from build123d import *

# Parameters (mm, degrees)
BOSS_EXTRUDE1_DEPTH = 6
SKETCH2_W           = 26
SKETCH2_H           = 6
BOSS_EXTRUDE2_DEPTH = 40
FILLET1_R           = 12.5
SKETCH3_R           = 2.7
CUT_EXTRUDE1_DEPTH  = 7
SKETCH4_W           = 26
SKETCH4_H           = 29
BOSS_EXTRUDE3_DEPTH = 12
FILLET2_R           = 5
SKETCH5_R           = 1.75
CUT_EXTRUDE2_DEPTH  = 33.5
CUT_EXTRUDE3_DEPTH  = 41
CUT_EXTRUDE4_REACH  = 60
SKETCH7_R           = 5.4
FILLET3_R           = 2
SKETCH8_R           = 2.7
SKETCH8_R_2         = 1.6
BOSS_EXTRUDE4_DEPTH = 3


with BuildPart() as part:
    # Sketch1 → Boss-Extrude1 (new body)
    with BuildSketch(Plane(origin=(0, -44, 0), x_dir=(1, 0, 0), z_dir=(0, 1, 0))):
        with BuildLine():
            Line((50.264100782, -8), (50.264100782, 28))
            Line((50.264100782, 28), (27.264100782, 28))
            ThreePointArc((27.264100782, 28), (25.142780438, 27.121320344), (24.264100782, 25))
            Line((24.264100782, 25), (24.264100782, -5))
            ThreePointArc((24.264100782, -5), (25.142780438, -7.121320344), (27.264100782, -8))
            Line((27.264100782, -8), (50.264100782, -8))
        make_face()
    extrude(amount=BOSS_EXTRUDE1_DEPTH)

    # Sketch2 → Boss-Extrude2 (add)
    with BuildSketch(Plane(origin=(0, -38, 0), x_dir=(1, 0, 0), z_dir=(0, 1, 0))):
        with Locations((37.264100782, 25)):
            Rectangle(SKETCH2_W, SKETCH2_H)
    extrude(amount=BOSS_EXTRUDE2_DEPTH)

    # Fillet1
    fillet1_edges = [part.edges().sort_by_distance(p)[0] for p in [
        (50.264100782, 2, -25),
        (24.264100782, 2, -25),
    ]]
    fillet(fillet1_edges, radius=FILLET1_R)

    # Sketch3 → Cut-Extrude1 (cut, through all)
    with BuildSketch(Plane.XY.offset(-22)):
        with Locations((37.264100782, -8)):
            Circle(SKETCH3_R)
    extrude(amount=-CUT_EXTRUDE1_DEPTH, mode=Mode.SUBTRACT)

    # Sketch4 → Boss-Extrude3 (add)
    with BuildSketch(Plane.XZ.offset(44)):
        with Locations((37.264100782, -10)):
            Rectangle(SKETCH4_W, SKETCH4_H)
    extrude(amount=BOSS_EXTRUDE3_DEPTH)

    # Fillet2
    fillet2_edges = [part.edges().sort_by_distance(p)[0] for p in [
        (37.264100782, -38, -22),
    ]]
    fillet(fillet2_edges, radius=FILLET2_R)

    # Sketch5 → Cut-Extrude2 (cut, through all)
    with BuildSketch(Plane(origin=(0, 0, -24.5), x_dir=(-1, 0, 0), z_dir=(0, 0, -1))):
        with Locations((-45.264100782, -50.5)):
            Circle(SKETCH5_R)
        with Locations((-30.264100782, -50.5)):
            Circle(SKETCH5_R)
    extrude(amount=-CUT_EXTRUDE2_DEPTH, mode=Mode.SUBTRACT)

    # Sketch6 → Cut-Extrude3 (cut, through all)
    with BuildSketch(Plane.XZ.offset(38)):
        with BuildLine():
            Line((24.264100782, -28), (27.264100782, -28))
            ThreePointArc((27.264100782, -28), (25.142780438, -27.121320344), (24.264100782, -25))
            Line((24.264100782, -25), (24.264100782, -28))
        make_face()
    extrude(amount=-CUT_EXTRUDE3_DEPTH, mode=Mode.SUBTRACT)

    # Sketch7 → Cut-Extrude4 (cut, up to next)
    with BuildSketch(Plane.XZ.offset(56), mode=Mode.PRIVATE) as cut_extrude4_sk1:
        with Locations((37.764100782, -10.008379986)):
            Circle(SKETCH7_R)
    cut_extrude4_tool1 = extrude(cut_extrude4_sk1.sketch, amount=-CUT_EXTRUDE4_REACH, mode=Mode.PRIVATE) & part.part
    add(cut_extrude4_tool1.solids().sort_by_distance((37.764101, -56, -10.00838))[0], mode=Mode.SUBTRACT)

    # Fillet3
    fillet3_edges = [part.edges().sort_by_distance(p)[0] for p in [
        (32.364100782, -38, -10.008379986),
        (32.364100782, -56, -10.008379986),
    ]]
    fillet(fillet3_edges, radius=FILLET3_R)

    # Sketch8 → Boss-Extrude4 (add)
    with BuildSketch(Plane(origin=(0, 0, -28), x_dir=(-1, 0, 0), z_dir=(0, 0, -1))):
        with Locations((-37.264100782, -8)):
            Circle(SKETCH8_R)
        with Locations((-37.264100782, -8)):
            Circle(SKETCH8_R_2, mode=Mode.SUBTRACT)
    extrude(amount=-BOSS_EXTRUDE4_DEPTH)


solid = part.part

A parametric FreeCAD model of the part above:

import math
import FreeCAD as App
import Part
import Sketcher

V = App.Vector
Q = App.Units.Quantity


def edges_at(feature, points):
    """Names of the edges that pass closest to the given points."""
    edges = feature.Shape.Edges
    near = lambda p: min(range(len(edges)), key=lambda i: edges[i].distToShape(Part.Vertex(*p))[0])
    return sorted({f"Edge{near(p) + 1}" for p in points})


def add_polygon(sketch, points):
    """Adds a closed chain of lines whose ends are joined by coincident constraints."""
    first, n = sketch.GeometryCount, len(points)
    for a, b in zip(points, points[1:] + points[:1]):
        sketch.addGeometry(Part.LineSegment(App.Vector(*a, 0), App.Vector(*b, 0)), False)
    for i in range(n):
        sketch.addConstraint(Sketcher.Constraint("Coincident", first + i, 2, first + (i + 1) % n, 1))

doc = App.newDocument("Part")
body = doc.addObject("PartDesign::Body", "Body")

# Sketch on XZ plane
sketch1 = body.newObject("Sketcher::SketchObject", "Sketch")
sketch1.AttachmentSupport = (doc.getObject("XZ_Plane"), [""])
sketch1.MapMode = "FlatFace"
sketch1.AttachmentOffset = App.Placement(V(0, 0, 44), App.Rotation())
sketch1.addGeometry(Part.LineSegment(V(50.264101, 8, 0), V(50.264101, -28, 0)), False)
sketch1.addGeometry(Part.LineSegment(V(50.264101, -28, 0), V(27.264101, -28, 0)), False)
sketch1.addGeometry(Part.ArcOfCircle(Part.Circle(V(27.264101, -25, 0), V(0, 0, 1), 3), math.radians(180), math.radians(270)), False)
sketch1.addGeometry(Part.LineSegment(V(24.264101, -25, 0), V(24.264101, 5, 0)), False)
sketch1.addGeometry(Part.ArcOfCircle(Part.Circle(V(27.264101, 5, 0), V(0, 0, 1), 3), math.radians(90), math.radians(180)), False)
sketch1.addGeometry(Part.LineSegment(V(27.264101, 8, 0), V(50.264101, 8, 0)), False)
sketch1.addConstraint(Sketcher.Constraint("Coincident", 0, 2, 1, 1))
sketch1.addConstraint(Sketcher.Constraint("Tangent", 1, 2, 2, 2))
sketch1.addConstraint(Sketcher.Constraint("Tangent", 2, 1, 3, 1))
sketch1.addConstraint(Sketcher.Constraint("Tangent", 3, 2, 4, 2))
sketch1.addConstraint(Sketcher.Constraint("Tangent", 4, 1, 5, 1))
sketch1.addConstraint(Sketcher.Constraint("Coincident", 5, 2, 0, 1))
sketch1.addConstraint(Sketcher.Constraint("Vertical", 0))
sketch1.addConstraint(Sketcher.Constraint("Horizontal", 1))
sketch1.addConstraint(Sketcher.Constraint("Vertical", 3))
sketch1.addConstraint(Sketcher.Constraint("Horizontal", 5))
sketch1.addConstraint(Sketcher.Constraint("Equal", 2, 4))
sketch1.addConstraint(Sketcher.Constraint("Radius", 2, Q("3 mm")))
sketch1.addConstraint(Sketcher.Constraint("DistanceX", 1, 2, 1, 1, Q("23 mm")))
sketch1.addConstraint(Sketcher.Constraint("DistanceY", 0, 2, 0, 1, Q("36 mm")))
sketch1.addConstraint(Sketcher.Constraint("DistanceY", 2, 3, -1, 1, Q("25 mm")))
sketch1.addConstraint(Sketcher.Constraint("DistanceX", -1, 1, 2, 3, Q("27.264101 mm")))
pad1 = body.newObject("PartDesign::Pad", "Pad")
pad1.Profile = sketch1
pad1.Length = 6
pad1.Reversed = True

# Sketch on XZ plane
sketch2 = body.newObject("Sketcher::SketchObject", "Sketch001")
sketch2.AttachmentSupport = (doc.getObject("XZ_Plane"), [""])
sketch2.MapMode = "FlatFace"
sketch2.AttachmentOffset = App.Placement(V(0, 0, 38), App.Rotation())
add_polygon(sketch2, [(24.264101, -28), (24.264101, -22), (50.264101, -22), (50.264101, -28)])  # lines 0-3
sketch2.addConstraint(Sketcher.Constraint("Vertical", 0))
sketch2.addConstraint(Sketcher.Constraint("Horizontal", 1))
sketch2.addConstraint(Sketcher.Constraint("Vertical", 2))
sketch2.addConstraint(Sketcher.Constraint("Horizontal", 3))
sketch2.addConstraint(Sketcher.Constraint("DistanceX", 1, 1, 1, 2, Q("26 mm")))
sketch2.addConstraint(Sketcher.Constraint("DistanceY", 0, 1, 0, 2, Q("6 mm")))
sketch2.addConstraint(Sketcher.Constraint("DistanceY", 0, 2, -1, 1, Q("22 mm")))
sketch2.addConstraint(Sketcher.Constraint("DistanceX", -1, 1, 0, 2, Q("24.264101 mm")))
pad2 = body.newObject("PartDesign::Pad", "Pad001")
pad2.Profile = sketch2
pad2.Length = 40
pad2.Reversed = True
doc.recompute()

fillet = body.newObject("PartDesign::Fillet", "Fillet")
fillet.Base = (pad2, edges_at(pad2, [(50.264, 2, -25), (24.264, 2, -25)]))
fillet.Radius = 12.5

# Sketch on XY plane
sketch3 = body.newObject("Sketcher::SketchObject", "Sketch002")
sketch3.AttachmentSupport = (doc.getObject("XY_Plane"), [""])
sketch3.MapMode = "FlatFace"
sketch3.AttachmentOffset = App.Placement(V(0, 0, -22), App.Rotation())
sketch3.addGeometry(Part.Circle(V(37.264101, -8, 0), V(0, 0, 1), 2.7), False)
sketch3.addConstraint(Sketcher.Constraint("Diameter", 0, Q("5.4 mm")))
sketch3.addConstraint(Sketcher.Constraint("DistanceY", 0, 3, -1, 1, Q("8 mm")))
sketch3.addConstraint(Sketcher.Constraint("DistanceX", -1, 1, 0, 3, Q("37.264101 mm")))
pocket1 = body.newObject("PartDesign::Pocket", "Pocket")
pocket1.Profile = sketch3
pocket1.Type = "ThroughAll"

# Sketch on XZ plane
sketch4 = body.newObject("Sketcher::SketchObject", "Sketch003")
sketch4.AttachmentSupport = (doc.getObject("XZ_Plane"), [""])
sketch4.MapMode = "FlatFace"
sketch4.AttachmentOffset = App.Placement(V(0, 0, 44), App.Rotation())
add_polygon(sketch4, [(24.264101, 4.5), (24.264101, -24.5), (50.264101, -24.5), (50.264101, 4.5)])  # lines 0-3
sketch4.addConstraint(Sketcher.Constraint("Vertical", 0))
sketch4.addConstraint(Sketcher.Constraint("Horizontal", 1))
sketch4.addConstraint(Sketcher.Constraint("Vertical", 2))
sketch4.addConstraint(Sketcher.Constraint("Horizontal", 3))
sketch4.addConstraint(Sketcher.Constraint("DistanceX", 1, 1, 1, 2, Q("26 mm")))
sketch4.addConstraint(Sketcher.Constraint("DistanceY", 0, 2, 0, 1, Q("29 mm")))
sketch4.addConstraint(Sketcher.Constraint("DistanceY", 0, 2, -1, 1, Q("24.5 mm")))
sketch4.addConstraint(Sketcher.Constraint("DistanceX", -1, 1, 0, 2, Q("24.264101 mm")))
pad3 = body.newObject("PartDesign::Pad", "Pad002")
pad3.Profile = sketch4
pad3.Length = 12
doc.recompute()

fillet2 = body.newObject("PartDesign::Fillet", "Fillet001")
fillet2.Base = (pad3, edges_at(pad3, [(37.264, -38, -22)]))
fillet2.Radius = 5

# Sketch on XY plane
sketch5 = body.newObject("Sketcher::SketchObject", "Sketch004")
sketch5.AttachmentSupport = (doc.getObject("XY_Plane"), [""])
sketch5.MapMode = "FlatFace"
sketch5.AttachmentOffset = App.Placement(V(0, 0, -24.5), App.Rotation())
sketch5.addGeometry(Part.Circle(V(45.264101, -50.5, 0), V(0, 0, 1), 1.75), False)
sketch5.addGeometry(Part.Circle(V(30.264101, -50.5, 0), V(0, 0, 1), 1.75), False)
sketch5.addConstraint(Sketcher.Constraint("Equal", 0, 1))
sketch5.addConstraint(Sketcher.Constraint("Horizontal", 0, 3, 1, 3))
sketch5.addConstraint(Sketcher.Constraint("Diameter", 0, Q("3.5 mm")))
sketch5.addConstraint(Sketcher.Constraint("DistanceX", 1, 3, 0, 3, Q("15 mm")))
sketch5.addConstraint(Sketcher.Constraint("DistanceY", 0, 3, -1, 1, Q("50.5 mm")))
sketch5.addConstraint(Sketcher.Constraint("DistanceX", -1, 1, 0, 3, Q("45.264101 mm")))
pocket2 = body.newObject("PartDesign::Pocket", "Pocket001")
pocket2.Profile = sketch5
pocket2.Type = "ThroughAll"
pocket2.Reversed = True

# Sketch on XZ plane
sketch6 = body.newObject("Sketcher::SketchObject", "Sketch005")
sketch6.AttachmentSupport = (doc.getObject("XZ_Plane"), [""])
sketch6.MapMode = "FlatFace"
sketch6.AttachmentOffset = App.Placement(V(0, 0, 38), App.Rotation())
sketch6.addGeometry(Part.LineSegment(V(24.264101, -28, 0), V(27.264101, -28, 0)), False)
sketch6.addGeometry(Part.ArcOfCircle(Part.Circle(V(27.264101, -25, 0), V(0, 0, 1), 3), math.radians(180), math.radians(270)), False)
sketch6.addGeometry(Part.LineSegment(V(24.264101, -25, 0), V(24.264101, -28, 0)), False)
sketch6.addConstraint(Sketcher.Constraint("Tangent", 0, 2, 1, 2))
sketch6.addConstraint(Sketcher.Constraint("Tangent", 1, 1, 2, 1))
sketch6.addConstraint(Sketcher.Constraint("Coincident", 2, 2, 0, 1))
sketch6.addConstraint(Sketcher.Constraint("Horizontal", 0))
sketch6.addConstraint(Sketcher.Constraint("Vertical", 2))
sketch6.addConstraint(Sketcher.Constraint("Radius", 1, Q("3 mm")))
sketch6.addConstraint(Sketcher.Constraint("DistanceY", 1, 3, -1, 1, Q("25 mm")))
sketch6.addConstraint(Sketcher.Constraint("DistanceX", -1, 1, 1, 3, Q("27.264101 mm")))
pocket3 = body.newObject("PartDesign::Pocket", "Pocket002")
pocket3.Profile = sketch6
pocket3.Type = "ThroughAll"

# Sketch on XZ plane
sketch7 = body.newObject("Sketcher::SketchObject", "Sketch006")
sketch7.AttachmentSupport = (doc.getObject("XZ_Plane"), [""])
sketch7.MapMode = "FlatFace"
sketch7.AttachmentOffset = App.Placement(V(0, 0, 56), App.Rotation())
sketch7.addGeometry(Part.Circle(V(37.764101, -10.00838, 0), V(0, 0, 1), 5.4), False)
sketch7.addConstraint(Sketcher.Constraint("Diameter", 0, Q("10.8 mm")))
sketch7.addConstraint(Sketcher.Constraint("DistanceX", -1, 1, 0, 3, Q("37.764101 mm")))
sketch7.addConstraint(Sketcher.Constraint("DistanceY", 0, 3, -1, 1, Q("10.00838 mm")))
pocket4 = body.newObject("PartDesign::Pocket", "Pocket003")
pocket4.Profile = sketch7
pocket4.Type = "UpToFirst"
doc.recompute()

fillet3 = body.newObject("PartDesign::Fillet", "Fillet002")
fillet3.Base = (pocket4, edges_at(pocket4, [(32.364, -38, -10.008), (32.364, -56, -10.008)]))
fillet3.Radius = 2

# Sketch on XY plane
sketch8 = body.newObject("Sketcher::SketchObject", "Sketch007")
sketch8.AttachmentSupport = (doc.getObject("XY_Plane"), [""])
sketch8.MapMode = "FlatFace"
sketch8.AttachmentOffset = App.Placement(V(0, 0, -28), App.Rotation())
sketch8.addGeometry(Part.Circle(V(37.264101, -8, 0), V(0, 0, 1), 2.7), False)
sketch8.addGeometry(Part.Circle(V(37.264101, -8, 0), V(0, 0, 1), 1.6), False)
sketch8.addConstraint(Sketcher.Constraint("Coincident", 1, 3, 0, 3))
sketch8.addConstraint(Sketcher.Constraint("Diameter", 0, Q("5.4 mm")))
sketch8.addConstraint(Sketcher.Constraint("Diameter", 1, Q("3.2 mm")))
sketch8.addConstraint(Sketcher.Constraint("DistanceY", 0, 3, -1, 1, Q("8 mm")))
sketch8.addConstraint(Sketcher.Constraint("DistanceX", -1, 1, 0, 3, Q("37.264101 mm")))
pad4 = body.newObject("PartDesign::Pad", "Pad003")
pad4.Profile = sketch8
pad4.Length = 3

doc.recompute()
